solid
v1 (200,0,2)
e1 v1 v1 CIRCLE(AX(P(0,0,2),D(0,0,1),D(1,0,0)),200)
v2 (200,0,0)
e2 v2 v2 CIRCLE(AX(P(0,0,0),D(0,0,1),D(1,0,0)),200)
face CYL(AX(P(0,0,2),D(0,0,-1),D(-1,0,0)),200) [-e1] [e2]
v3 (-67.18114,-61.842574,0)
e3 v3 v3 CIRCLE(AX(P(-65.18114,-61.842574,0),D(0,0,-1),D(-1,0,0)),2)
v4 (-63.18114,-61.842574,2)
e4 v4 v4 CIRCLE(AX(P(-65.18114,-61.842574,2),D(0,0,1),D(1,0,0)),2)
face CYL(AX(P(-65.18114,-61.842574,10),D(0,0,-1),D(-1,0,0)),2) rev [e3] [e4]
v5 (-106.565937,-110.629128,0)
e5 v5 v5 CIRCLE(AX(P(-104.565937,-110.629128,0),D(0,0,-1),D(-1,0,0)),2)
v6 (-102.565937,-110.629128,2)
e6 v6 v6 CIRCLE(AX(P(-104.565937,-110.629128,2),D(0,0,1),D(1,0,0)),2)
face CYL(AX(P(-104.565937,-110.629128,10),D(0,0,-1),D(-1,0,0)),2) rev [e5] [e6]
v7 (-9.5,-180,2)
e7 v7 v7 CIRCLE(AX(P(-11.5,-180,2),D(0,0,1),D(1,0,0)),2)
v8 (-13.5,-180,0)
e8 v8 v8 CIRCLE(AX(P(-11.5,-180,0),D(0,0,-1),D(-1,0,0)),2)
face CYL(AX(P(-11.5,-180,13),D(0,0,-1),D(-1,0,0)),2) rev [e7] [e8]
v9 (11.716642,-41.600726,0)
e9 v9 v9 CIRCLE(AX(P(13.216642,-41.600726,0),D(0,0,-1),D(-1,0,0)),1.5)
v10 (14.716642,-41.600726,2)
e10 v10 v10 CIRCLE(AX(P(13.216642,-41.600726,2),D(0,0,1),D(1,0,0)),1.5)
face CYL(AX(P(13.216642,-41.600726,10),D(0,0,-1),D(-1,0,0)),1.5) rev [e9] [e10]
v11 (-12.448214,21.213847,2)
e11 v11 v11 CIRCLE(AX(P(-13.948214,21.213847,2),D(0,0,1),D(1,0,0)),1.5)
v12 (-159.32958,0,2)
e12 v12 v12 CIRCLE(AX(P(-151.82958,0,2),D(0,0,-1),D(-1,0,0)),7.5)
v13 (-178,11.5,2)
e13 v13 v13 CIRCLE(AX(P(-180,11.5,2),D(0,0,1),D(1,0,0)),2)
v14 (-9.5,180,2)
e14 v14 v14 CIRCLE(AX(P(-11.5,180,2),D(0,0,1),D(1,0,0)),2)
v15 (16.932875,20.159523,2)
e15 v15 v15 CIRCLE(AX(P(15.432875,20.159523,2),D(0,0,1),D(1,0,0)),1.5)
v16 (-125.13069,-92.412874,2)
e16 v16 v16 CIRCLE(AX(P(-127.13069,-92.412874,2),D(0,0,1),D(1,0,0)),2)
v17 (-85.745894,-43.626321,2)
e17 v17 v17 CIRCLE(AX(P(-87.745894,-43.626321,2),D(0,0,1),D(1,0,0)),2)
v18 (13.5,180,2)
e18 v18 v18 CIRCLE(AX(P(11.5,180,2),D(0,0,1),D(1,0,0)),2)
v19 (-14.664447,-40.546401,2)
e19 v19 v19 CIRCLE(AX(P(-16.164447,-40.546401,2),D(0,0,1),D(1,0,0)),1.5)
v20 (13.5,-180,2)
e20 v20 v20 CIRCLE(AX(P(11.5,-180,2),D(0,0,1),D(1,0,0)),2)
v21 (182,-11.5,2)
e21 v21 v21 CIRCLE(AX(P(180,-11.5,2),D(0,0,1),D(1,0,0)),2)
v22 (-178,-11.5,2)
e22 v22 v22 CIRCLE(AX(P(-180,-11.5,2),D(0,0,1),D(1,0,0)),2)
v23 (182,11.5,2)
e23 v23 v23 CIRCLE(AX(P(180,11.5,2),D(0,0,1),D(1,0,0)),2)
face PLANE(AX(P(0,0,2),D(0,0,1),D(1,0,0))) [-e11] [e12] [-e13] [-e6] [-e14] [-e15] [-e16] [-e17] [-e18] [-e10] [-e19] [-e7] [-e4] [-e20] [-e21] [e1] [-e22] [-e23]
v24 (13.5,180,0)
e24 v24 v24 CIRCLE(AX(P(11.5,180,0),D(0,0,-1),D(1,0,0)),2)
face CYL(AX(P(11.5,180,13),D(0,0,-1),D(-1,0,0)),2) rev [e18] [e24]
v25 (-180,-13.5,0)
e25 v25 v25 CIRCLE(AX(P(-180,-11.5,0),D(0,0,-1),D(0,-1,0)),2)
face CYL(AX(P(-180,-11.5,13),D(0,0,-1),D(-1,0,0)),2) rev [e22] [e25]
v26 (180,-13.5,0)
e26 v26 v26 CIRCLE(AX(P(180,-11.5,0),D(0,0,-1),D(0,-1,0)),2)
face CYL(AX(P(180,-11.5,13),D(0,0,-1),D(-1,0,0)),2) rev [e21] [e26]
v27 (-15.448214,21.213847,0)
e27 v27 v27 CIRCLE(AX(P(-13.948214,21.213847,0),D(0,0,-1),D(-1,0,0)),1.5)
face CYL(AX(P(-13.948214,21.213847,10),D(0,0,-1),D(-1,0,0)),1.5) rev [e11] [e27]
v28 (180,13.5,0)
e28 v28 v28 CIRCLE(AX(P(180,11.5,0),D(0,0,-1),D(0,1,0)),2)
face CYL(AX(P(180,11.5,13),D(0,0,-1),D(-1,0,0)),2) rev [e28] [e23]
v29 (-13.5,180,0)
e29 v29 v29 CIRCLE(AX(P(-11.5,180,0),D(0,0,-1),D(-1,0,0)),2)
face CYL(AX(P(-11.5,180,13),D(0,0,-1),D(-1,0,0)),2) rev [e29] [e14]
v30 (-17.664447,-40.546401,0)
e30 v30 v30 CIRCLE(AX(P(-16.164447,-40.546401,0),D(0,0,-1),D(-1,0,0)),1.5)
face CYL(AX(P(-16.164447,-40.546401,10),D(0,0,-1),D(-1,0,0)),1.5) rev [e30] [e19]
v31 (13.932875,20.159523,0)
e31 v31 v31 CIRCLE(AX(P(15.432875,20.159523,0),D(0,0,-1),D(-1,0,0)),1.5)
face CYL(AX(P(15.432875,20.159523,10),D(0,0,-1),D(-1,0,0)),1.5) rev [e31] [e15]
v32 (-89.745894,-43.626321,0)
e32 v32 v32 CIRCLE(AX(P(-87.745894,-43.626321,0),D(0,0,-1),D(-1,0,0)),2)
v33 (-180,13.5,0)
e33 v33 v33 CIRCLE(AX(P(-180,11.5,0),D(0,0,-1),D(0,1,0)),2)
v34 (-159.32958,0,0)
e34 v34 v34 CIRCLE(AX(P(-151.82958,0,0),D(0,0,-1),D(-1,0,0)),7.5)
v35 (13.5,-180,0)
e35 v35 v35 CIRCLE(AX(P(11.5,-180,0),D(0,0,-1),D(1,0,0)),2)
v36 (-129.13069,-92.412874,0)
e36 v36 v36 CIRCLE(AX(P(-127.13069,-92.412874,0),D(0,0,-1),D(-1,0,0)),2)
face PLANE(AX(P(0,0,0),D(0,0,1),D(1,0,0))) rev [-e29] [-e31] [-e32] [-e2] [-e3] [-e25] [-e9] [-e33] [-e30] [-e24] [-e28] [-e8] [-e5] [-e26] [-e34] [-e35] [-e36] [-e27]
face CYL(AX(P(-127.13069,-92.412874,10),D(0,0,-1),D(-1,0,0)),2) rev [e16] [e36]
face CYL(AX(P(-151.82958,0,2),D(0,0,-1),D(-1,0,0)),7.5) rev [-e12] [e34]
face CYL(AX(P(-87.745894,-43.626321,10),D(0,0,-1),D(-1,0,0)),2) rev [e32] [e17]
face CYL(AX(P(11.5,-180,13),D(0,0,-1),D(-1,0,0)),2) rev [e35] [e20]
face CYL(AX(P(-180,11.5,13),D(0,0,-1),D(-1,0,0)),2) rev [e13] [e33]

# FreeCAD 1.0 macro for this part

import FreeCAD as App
import Part
import Sketcher

doc = App.newDocument("Part")
body = doc.addObject("PartDesign::Body", "Body")

# Sketch on XY plane
sketch1 = doc.addObject("Sketcher::SketchObject", "Sketch")
body.addObject(sketch1)
sketch1.AttachmentSupport = (doc.XY_Plane, [""])
sketch1.MapMode = "FlatFace"
sketch1.addGeometry(Part.Circle(App.Vector(0, 0, 0), App.Vector(0, 0, 1), 200), False)
sketch1.addConstraint([
    Sketcher.Constraint("Coincident", 0, 3, -1, 1),
    Sketcher.Constraint("Diameter", 0, 400.0),
])
pad1 = doc.addObject("PartDesign::Pad", "Pad")
body.addObject(pad1)
pad1.Profile = sketch1
pad1.Length = 2

# Sketch on XY plane
sketch2 = doc.addObject("Sketcher::SketchObject", "Sketch001")
body.addObject(sketch2)
sketch2.AttachmentSupport = (doc.XY_Plane, [""])
sketch2.MapMode = "FlatFace"
sketch2.addGeometry([
    Part.Circle(App.Vector(-11.5, 180, 0), App.Vector(0, 0, 1), 2),
    Part.Circle(App.Vector(11.5, 180, 0), App.Vector(0, 0, 1), 2),
], False)
sketch2.addConstraint([
    Sketcher.Constraint("Equal", 0, 1),
    Sketcher.Constraint("Symmetric", 0, 3, 1, 3, -2),
    Sketcher.Constraint("Diameter", 0, 4.0),
    Sketcher.Constraint("DistanceY", -1, 1, 0, 3, 180.0),
    Sketcher.Constraint("DistanceX", 0, 3, 1, 3, 23.0),
])
pocket1 = doc.addObject("PartDesign::Pocket", "Pocket")
body.addObject(pocket1)
pocket1.Profile = sketch2
pocket1.Length = 13
pocket1.Reversed = True
doc.recompute()

polarpattern = doc.addObject("PartDesign::PolarPattern", "PolarPattern")
body.addObject(polarpattern)
polarpattern.Originals = [pocket1]
polarpattern.Axis = (doc.Z_Axis, [""])
polarpattern.Angle = 360
polarpattern.Occurrences = 4
body.Tip = polarpattern

# Sketch on XY plane
sketch3 = doc.addObject("Sketcher::SketchObject", "Sketch002")
body.addObject(sketch3)
sketch3.AttachmentSupport = (doc.XY_Plane, [""])
sketch3.MapMode = "FlatFace"
sketch3.addGeometry(Part.Circle(App.Vector(-152, 0, 0), App.Vector(0, 0, 1), 8), False)
sketch3.addConstraint([
    Sketcher.Constraint("PointOnObject", 0, 3, -1),
    Sketcher.Constraint("Diameter", 0, 15.0),
    Sketcher.Constraint("DistanceX", 0, 3, -1, 1, 151.82958),
])
pocket2 = doc.addObject("PartDesign::Pocket", "Pocket001")
body.addObject(pocket2)
pocket2.Profile = sketch3
pocket2.Length = 2
pocket2.Reversed = True

# Sketch on XY plane
sketch4 = doc.addObject("Sketcher::SketchObject", "Sketch003")
body.addObject(sketch4)
sketch4.AttachmentSupport = (doc.XY_Plane, [""])
sketch4.MapMode = "FlatFace"
sketch4.addGeometry([
    Part.Circle(App.Vector(-127.1, -92.4, 0), App.Vector(0, 0, 1), 2),
    Part.Circle(App.Vector(-104.6, -110.6, 0), App.Vector(0, 0, 1), 2),
    Part.Circle(App.Vector(-65.2, -61.8, 0), App.Vector(0, 0, 1), 2),
    Part.Circle(App.Vector(-87.7, -43.6, 0), App.Vector(0, 0, 1), 2),
], False)
sketch4.addConstraint([
    Sketcher.Constraint("Equal", 0, 1),
    Sketcher.Constraint("Equal", 1, 2),
    Sketcher.Constraint("Equal", 2, 3),
    Sketcher.Constraint("Diameter", 0, 4.0),
    Sketcher.Constraint("DistanceY", 0, 3, 2, 3, 30.5703),
    Sketcher.Constraint("DistanceX", 0, 3, -1, 1, 127.13069),
    Sketcher.Constraint("DistanceX", 2, 3, -1, 1, 65.18114),
    Sketcher.Constraint("DistanceY", 3, 3, -1, 1, 43.626321),
    Sketcher.Constraint("DistanceY", 0, 3, -1, 1, 92.412874),
    Sketcher.Constraint("DistanceX", 1, 3, -1, 1, 104.565937),
    Sketcher.Constraint("DistanceY", 1, 3, -1, 1, 110.629128),
    Sketcher.Constraint("DistanceX", 3, 3, -1, 1, 87.745894),
])
pocket3 = doc.addObject("PartDesign::Pocket", "Pocket002")
body.addObject(pocket3)
pocket3.Profile = sketch4
pocket3.Length = 10
pocket3.Reversed = True

# Sketch on XY plane
sketch5 = doc.addObject("Sketcher::SketchObject", "Sketch004")
body.addObject(sketch5)
sketch5.AttachmentSupport = (doc.XY_Plane, [""])
sketch5.MapMode = "FlatFace"
sketch5.addGeometry([
    Part.Circle(App.Vector(15.4, 20.2, 0), App.Vector(0, 0, 1), 1.5),
    Part.Circle(App.Vector(-13.9, 21.2, 0), App.Vector(0, 0, 1), 1.5),
    Part.Circle(App.Vector(13.2, -41.6, 0), App.Vector(0, 0, 1), 1.5),
    Part.Circle(App.Vector(-16.2, -40.5, 0), App.Vector(0, 0, 1), 1.5),
], False)
sketch5.addConstraint([
    Sketcher.Constraint("Equal", 0, 1),
    Sketcher.Constraint("Equal", 1, 2),
    Sketcher.Constraint("Equal", 2, 3),
    Sketcher.Constraint("Diameter", 0, 3.0),
    Sketcher.Constraint("DistanceY", 3, 3, -1, 1, 40.546401),
    Sketcher.Constraint("DistanceX", 1, 3, 0, 3, 29.381089),
    Sketcher.Constraint("DistanceY", 2, 3, 0, 3, 61.760249),
    Sketcher.Constraint("DistanceX", 3, 3, 2, 3, 29.381089),
    Sketcher.Constraint("DistanceY", 3, 3, 1, 3, 61.760249),
    Sketcher.Constraint("DistanceX", -1, 1, 0, 3, 15.432875),
    Sketcher.Constraint("DistanceY", -1, 1, 0, 3, 20.159523),
    Sketcher.Constraint("DistanceX", -1, 1, 2, 3, 13.216642),
])
pocket4 = doc.addObject("PartDesign::Pocket", "Pocket003")
body.addObject(pocket4)
pocket4.Profile = sketch5
pocket4.Length = 10
pocket4.Reversed = True

doc.recompute()
